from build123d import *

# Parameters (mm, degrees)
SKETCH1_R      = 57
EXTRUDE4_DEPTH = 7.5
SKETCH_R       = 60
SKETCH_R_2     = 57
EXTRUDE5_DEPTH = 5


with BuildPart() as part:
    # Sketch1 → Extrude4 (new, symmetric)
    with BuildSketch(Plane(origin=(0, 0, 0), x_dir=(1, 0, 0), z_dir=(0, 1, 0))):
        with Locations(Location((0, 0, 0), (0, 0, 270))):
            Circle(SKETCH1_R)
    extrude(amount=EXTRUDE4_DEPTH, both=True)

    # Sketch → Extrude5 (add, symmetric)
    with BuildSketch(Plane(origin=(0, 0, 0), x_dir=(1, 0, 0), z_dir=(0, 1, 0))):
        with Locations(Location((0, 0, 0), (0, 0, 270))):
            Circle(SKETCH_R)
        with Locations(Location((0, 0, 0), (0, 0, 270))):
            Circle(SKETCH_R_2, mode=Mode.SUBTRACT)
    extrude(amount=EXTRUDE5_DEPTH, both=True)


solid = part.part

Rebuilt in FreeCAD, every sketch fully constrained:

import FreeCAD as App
import Part
import Sketcher

V = App.Vector

doc = App.newDocument("Part")
params = doc.addObject("Spreadsheet::Sheet", "Params")
for row, (alias, value) in enumerate([
    ("sketch1_diameter", "114 mm"),
    ("pad1_length", "15 mm"),
    ("sketch2_diameter", "120 mm"),
    ("sketch2_diameter2", "114 mm"),
    ("pad2_length", "10 mm"),
], start=1):
    params.set(f"A{row}", alias)
    params.set(f"B{row}", "=" + value)
    params.setAlias(f"B{row}", alias)

body = doc.addObject("PartDesign::Body", "Body")

# Sketch on XZ plane
sketch1 = body.newObject("Sketcher::SketchObject", "Sketch")
sketch1.AttachmentSupport = (doc.getObject("XZ_Plane"), [""])
sketch1.MapMode = "FlatFace"
sketch1.addGeometry(Part.Circle(V(0, 0, 0), V(0, 0, 1), 57), False)
sketch1.addConstraint([
    Sketcher.Constraint("Coincident", 0, 3, -1, 1),
    Sketcher.Constraint("Diameter", 0, 114.0),
])
sketch1.setExpression("Constraints[1]", "Params.sketch1_diameter")
pad1 = body.newObject("PartDesign::Pad", "Pad")
pad1.Profile = sketch1
pad1.setExpression("Length", "Params.pad1_length")
pad1.Midplane = True

# Sketch on XZ plane
sketch2 = body.newObject("Sketcher::SketchObject", "Sketch001")
sketch2.AttachmentSupport = (doc.getObject("XZ_Plane"), [""])
sketch2.MapMode = "FlatFace"
sketch2.addGeometry([
    Part.Circle(V(0, 0, 0), V(0, 0, 1), 60),
    Part.Circle(V(0, 0, 0), V(0, 0, 1), 57),
], False)
sketch2.addConstraint([
    Sketcher.Constraint("Coincident", 0, 3, -1, 1),
    Sketcher.Constraint("Coincident", 1, 3, -1, 1),
    Sketcher.Constraint("Diameter", 0, 120.0),
    Sketcher.Constraint("Diameter", 1, 114.0),
])
sketch2.setExpression("Constraints[2]", "Params.sketch2_diameter")
sketch2.setExpression("Constraints[3]", "Params.sketch2_diameter2")
pad2 = body.newObject("PartDesign::Pad", "Pad001")
pad2.Profile = sketch2
pad2.setExpression("Length", "Params.pad2_length")
pad2.Midplane = True

doc.recompute()
